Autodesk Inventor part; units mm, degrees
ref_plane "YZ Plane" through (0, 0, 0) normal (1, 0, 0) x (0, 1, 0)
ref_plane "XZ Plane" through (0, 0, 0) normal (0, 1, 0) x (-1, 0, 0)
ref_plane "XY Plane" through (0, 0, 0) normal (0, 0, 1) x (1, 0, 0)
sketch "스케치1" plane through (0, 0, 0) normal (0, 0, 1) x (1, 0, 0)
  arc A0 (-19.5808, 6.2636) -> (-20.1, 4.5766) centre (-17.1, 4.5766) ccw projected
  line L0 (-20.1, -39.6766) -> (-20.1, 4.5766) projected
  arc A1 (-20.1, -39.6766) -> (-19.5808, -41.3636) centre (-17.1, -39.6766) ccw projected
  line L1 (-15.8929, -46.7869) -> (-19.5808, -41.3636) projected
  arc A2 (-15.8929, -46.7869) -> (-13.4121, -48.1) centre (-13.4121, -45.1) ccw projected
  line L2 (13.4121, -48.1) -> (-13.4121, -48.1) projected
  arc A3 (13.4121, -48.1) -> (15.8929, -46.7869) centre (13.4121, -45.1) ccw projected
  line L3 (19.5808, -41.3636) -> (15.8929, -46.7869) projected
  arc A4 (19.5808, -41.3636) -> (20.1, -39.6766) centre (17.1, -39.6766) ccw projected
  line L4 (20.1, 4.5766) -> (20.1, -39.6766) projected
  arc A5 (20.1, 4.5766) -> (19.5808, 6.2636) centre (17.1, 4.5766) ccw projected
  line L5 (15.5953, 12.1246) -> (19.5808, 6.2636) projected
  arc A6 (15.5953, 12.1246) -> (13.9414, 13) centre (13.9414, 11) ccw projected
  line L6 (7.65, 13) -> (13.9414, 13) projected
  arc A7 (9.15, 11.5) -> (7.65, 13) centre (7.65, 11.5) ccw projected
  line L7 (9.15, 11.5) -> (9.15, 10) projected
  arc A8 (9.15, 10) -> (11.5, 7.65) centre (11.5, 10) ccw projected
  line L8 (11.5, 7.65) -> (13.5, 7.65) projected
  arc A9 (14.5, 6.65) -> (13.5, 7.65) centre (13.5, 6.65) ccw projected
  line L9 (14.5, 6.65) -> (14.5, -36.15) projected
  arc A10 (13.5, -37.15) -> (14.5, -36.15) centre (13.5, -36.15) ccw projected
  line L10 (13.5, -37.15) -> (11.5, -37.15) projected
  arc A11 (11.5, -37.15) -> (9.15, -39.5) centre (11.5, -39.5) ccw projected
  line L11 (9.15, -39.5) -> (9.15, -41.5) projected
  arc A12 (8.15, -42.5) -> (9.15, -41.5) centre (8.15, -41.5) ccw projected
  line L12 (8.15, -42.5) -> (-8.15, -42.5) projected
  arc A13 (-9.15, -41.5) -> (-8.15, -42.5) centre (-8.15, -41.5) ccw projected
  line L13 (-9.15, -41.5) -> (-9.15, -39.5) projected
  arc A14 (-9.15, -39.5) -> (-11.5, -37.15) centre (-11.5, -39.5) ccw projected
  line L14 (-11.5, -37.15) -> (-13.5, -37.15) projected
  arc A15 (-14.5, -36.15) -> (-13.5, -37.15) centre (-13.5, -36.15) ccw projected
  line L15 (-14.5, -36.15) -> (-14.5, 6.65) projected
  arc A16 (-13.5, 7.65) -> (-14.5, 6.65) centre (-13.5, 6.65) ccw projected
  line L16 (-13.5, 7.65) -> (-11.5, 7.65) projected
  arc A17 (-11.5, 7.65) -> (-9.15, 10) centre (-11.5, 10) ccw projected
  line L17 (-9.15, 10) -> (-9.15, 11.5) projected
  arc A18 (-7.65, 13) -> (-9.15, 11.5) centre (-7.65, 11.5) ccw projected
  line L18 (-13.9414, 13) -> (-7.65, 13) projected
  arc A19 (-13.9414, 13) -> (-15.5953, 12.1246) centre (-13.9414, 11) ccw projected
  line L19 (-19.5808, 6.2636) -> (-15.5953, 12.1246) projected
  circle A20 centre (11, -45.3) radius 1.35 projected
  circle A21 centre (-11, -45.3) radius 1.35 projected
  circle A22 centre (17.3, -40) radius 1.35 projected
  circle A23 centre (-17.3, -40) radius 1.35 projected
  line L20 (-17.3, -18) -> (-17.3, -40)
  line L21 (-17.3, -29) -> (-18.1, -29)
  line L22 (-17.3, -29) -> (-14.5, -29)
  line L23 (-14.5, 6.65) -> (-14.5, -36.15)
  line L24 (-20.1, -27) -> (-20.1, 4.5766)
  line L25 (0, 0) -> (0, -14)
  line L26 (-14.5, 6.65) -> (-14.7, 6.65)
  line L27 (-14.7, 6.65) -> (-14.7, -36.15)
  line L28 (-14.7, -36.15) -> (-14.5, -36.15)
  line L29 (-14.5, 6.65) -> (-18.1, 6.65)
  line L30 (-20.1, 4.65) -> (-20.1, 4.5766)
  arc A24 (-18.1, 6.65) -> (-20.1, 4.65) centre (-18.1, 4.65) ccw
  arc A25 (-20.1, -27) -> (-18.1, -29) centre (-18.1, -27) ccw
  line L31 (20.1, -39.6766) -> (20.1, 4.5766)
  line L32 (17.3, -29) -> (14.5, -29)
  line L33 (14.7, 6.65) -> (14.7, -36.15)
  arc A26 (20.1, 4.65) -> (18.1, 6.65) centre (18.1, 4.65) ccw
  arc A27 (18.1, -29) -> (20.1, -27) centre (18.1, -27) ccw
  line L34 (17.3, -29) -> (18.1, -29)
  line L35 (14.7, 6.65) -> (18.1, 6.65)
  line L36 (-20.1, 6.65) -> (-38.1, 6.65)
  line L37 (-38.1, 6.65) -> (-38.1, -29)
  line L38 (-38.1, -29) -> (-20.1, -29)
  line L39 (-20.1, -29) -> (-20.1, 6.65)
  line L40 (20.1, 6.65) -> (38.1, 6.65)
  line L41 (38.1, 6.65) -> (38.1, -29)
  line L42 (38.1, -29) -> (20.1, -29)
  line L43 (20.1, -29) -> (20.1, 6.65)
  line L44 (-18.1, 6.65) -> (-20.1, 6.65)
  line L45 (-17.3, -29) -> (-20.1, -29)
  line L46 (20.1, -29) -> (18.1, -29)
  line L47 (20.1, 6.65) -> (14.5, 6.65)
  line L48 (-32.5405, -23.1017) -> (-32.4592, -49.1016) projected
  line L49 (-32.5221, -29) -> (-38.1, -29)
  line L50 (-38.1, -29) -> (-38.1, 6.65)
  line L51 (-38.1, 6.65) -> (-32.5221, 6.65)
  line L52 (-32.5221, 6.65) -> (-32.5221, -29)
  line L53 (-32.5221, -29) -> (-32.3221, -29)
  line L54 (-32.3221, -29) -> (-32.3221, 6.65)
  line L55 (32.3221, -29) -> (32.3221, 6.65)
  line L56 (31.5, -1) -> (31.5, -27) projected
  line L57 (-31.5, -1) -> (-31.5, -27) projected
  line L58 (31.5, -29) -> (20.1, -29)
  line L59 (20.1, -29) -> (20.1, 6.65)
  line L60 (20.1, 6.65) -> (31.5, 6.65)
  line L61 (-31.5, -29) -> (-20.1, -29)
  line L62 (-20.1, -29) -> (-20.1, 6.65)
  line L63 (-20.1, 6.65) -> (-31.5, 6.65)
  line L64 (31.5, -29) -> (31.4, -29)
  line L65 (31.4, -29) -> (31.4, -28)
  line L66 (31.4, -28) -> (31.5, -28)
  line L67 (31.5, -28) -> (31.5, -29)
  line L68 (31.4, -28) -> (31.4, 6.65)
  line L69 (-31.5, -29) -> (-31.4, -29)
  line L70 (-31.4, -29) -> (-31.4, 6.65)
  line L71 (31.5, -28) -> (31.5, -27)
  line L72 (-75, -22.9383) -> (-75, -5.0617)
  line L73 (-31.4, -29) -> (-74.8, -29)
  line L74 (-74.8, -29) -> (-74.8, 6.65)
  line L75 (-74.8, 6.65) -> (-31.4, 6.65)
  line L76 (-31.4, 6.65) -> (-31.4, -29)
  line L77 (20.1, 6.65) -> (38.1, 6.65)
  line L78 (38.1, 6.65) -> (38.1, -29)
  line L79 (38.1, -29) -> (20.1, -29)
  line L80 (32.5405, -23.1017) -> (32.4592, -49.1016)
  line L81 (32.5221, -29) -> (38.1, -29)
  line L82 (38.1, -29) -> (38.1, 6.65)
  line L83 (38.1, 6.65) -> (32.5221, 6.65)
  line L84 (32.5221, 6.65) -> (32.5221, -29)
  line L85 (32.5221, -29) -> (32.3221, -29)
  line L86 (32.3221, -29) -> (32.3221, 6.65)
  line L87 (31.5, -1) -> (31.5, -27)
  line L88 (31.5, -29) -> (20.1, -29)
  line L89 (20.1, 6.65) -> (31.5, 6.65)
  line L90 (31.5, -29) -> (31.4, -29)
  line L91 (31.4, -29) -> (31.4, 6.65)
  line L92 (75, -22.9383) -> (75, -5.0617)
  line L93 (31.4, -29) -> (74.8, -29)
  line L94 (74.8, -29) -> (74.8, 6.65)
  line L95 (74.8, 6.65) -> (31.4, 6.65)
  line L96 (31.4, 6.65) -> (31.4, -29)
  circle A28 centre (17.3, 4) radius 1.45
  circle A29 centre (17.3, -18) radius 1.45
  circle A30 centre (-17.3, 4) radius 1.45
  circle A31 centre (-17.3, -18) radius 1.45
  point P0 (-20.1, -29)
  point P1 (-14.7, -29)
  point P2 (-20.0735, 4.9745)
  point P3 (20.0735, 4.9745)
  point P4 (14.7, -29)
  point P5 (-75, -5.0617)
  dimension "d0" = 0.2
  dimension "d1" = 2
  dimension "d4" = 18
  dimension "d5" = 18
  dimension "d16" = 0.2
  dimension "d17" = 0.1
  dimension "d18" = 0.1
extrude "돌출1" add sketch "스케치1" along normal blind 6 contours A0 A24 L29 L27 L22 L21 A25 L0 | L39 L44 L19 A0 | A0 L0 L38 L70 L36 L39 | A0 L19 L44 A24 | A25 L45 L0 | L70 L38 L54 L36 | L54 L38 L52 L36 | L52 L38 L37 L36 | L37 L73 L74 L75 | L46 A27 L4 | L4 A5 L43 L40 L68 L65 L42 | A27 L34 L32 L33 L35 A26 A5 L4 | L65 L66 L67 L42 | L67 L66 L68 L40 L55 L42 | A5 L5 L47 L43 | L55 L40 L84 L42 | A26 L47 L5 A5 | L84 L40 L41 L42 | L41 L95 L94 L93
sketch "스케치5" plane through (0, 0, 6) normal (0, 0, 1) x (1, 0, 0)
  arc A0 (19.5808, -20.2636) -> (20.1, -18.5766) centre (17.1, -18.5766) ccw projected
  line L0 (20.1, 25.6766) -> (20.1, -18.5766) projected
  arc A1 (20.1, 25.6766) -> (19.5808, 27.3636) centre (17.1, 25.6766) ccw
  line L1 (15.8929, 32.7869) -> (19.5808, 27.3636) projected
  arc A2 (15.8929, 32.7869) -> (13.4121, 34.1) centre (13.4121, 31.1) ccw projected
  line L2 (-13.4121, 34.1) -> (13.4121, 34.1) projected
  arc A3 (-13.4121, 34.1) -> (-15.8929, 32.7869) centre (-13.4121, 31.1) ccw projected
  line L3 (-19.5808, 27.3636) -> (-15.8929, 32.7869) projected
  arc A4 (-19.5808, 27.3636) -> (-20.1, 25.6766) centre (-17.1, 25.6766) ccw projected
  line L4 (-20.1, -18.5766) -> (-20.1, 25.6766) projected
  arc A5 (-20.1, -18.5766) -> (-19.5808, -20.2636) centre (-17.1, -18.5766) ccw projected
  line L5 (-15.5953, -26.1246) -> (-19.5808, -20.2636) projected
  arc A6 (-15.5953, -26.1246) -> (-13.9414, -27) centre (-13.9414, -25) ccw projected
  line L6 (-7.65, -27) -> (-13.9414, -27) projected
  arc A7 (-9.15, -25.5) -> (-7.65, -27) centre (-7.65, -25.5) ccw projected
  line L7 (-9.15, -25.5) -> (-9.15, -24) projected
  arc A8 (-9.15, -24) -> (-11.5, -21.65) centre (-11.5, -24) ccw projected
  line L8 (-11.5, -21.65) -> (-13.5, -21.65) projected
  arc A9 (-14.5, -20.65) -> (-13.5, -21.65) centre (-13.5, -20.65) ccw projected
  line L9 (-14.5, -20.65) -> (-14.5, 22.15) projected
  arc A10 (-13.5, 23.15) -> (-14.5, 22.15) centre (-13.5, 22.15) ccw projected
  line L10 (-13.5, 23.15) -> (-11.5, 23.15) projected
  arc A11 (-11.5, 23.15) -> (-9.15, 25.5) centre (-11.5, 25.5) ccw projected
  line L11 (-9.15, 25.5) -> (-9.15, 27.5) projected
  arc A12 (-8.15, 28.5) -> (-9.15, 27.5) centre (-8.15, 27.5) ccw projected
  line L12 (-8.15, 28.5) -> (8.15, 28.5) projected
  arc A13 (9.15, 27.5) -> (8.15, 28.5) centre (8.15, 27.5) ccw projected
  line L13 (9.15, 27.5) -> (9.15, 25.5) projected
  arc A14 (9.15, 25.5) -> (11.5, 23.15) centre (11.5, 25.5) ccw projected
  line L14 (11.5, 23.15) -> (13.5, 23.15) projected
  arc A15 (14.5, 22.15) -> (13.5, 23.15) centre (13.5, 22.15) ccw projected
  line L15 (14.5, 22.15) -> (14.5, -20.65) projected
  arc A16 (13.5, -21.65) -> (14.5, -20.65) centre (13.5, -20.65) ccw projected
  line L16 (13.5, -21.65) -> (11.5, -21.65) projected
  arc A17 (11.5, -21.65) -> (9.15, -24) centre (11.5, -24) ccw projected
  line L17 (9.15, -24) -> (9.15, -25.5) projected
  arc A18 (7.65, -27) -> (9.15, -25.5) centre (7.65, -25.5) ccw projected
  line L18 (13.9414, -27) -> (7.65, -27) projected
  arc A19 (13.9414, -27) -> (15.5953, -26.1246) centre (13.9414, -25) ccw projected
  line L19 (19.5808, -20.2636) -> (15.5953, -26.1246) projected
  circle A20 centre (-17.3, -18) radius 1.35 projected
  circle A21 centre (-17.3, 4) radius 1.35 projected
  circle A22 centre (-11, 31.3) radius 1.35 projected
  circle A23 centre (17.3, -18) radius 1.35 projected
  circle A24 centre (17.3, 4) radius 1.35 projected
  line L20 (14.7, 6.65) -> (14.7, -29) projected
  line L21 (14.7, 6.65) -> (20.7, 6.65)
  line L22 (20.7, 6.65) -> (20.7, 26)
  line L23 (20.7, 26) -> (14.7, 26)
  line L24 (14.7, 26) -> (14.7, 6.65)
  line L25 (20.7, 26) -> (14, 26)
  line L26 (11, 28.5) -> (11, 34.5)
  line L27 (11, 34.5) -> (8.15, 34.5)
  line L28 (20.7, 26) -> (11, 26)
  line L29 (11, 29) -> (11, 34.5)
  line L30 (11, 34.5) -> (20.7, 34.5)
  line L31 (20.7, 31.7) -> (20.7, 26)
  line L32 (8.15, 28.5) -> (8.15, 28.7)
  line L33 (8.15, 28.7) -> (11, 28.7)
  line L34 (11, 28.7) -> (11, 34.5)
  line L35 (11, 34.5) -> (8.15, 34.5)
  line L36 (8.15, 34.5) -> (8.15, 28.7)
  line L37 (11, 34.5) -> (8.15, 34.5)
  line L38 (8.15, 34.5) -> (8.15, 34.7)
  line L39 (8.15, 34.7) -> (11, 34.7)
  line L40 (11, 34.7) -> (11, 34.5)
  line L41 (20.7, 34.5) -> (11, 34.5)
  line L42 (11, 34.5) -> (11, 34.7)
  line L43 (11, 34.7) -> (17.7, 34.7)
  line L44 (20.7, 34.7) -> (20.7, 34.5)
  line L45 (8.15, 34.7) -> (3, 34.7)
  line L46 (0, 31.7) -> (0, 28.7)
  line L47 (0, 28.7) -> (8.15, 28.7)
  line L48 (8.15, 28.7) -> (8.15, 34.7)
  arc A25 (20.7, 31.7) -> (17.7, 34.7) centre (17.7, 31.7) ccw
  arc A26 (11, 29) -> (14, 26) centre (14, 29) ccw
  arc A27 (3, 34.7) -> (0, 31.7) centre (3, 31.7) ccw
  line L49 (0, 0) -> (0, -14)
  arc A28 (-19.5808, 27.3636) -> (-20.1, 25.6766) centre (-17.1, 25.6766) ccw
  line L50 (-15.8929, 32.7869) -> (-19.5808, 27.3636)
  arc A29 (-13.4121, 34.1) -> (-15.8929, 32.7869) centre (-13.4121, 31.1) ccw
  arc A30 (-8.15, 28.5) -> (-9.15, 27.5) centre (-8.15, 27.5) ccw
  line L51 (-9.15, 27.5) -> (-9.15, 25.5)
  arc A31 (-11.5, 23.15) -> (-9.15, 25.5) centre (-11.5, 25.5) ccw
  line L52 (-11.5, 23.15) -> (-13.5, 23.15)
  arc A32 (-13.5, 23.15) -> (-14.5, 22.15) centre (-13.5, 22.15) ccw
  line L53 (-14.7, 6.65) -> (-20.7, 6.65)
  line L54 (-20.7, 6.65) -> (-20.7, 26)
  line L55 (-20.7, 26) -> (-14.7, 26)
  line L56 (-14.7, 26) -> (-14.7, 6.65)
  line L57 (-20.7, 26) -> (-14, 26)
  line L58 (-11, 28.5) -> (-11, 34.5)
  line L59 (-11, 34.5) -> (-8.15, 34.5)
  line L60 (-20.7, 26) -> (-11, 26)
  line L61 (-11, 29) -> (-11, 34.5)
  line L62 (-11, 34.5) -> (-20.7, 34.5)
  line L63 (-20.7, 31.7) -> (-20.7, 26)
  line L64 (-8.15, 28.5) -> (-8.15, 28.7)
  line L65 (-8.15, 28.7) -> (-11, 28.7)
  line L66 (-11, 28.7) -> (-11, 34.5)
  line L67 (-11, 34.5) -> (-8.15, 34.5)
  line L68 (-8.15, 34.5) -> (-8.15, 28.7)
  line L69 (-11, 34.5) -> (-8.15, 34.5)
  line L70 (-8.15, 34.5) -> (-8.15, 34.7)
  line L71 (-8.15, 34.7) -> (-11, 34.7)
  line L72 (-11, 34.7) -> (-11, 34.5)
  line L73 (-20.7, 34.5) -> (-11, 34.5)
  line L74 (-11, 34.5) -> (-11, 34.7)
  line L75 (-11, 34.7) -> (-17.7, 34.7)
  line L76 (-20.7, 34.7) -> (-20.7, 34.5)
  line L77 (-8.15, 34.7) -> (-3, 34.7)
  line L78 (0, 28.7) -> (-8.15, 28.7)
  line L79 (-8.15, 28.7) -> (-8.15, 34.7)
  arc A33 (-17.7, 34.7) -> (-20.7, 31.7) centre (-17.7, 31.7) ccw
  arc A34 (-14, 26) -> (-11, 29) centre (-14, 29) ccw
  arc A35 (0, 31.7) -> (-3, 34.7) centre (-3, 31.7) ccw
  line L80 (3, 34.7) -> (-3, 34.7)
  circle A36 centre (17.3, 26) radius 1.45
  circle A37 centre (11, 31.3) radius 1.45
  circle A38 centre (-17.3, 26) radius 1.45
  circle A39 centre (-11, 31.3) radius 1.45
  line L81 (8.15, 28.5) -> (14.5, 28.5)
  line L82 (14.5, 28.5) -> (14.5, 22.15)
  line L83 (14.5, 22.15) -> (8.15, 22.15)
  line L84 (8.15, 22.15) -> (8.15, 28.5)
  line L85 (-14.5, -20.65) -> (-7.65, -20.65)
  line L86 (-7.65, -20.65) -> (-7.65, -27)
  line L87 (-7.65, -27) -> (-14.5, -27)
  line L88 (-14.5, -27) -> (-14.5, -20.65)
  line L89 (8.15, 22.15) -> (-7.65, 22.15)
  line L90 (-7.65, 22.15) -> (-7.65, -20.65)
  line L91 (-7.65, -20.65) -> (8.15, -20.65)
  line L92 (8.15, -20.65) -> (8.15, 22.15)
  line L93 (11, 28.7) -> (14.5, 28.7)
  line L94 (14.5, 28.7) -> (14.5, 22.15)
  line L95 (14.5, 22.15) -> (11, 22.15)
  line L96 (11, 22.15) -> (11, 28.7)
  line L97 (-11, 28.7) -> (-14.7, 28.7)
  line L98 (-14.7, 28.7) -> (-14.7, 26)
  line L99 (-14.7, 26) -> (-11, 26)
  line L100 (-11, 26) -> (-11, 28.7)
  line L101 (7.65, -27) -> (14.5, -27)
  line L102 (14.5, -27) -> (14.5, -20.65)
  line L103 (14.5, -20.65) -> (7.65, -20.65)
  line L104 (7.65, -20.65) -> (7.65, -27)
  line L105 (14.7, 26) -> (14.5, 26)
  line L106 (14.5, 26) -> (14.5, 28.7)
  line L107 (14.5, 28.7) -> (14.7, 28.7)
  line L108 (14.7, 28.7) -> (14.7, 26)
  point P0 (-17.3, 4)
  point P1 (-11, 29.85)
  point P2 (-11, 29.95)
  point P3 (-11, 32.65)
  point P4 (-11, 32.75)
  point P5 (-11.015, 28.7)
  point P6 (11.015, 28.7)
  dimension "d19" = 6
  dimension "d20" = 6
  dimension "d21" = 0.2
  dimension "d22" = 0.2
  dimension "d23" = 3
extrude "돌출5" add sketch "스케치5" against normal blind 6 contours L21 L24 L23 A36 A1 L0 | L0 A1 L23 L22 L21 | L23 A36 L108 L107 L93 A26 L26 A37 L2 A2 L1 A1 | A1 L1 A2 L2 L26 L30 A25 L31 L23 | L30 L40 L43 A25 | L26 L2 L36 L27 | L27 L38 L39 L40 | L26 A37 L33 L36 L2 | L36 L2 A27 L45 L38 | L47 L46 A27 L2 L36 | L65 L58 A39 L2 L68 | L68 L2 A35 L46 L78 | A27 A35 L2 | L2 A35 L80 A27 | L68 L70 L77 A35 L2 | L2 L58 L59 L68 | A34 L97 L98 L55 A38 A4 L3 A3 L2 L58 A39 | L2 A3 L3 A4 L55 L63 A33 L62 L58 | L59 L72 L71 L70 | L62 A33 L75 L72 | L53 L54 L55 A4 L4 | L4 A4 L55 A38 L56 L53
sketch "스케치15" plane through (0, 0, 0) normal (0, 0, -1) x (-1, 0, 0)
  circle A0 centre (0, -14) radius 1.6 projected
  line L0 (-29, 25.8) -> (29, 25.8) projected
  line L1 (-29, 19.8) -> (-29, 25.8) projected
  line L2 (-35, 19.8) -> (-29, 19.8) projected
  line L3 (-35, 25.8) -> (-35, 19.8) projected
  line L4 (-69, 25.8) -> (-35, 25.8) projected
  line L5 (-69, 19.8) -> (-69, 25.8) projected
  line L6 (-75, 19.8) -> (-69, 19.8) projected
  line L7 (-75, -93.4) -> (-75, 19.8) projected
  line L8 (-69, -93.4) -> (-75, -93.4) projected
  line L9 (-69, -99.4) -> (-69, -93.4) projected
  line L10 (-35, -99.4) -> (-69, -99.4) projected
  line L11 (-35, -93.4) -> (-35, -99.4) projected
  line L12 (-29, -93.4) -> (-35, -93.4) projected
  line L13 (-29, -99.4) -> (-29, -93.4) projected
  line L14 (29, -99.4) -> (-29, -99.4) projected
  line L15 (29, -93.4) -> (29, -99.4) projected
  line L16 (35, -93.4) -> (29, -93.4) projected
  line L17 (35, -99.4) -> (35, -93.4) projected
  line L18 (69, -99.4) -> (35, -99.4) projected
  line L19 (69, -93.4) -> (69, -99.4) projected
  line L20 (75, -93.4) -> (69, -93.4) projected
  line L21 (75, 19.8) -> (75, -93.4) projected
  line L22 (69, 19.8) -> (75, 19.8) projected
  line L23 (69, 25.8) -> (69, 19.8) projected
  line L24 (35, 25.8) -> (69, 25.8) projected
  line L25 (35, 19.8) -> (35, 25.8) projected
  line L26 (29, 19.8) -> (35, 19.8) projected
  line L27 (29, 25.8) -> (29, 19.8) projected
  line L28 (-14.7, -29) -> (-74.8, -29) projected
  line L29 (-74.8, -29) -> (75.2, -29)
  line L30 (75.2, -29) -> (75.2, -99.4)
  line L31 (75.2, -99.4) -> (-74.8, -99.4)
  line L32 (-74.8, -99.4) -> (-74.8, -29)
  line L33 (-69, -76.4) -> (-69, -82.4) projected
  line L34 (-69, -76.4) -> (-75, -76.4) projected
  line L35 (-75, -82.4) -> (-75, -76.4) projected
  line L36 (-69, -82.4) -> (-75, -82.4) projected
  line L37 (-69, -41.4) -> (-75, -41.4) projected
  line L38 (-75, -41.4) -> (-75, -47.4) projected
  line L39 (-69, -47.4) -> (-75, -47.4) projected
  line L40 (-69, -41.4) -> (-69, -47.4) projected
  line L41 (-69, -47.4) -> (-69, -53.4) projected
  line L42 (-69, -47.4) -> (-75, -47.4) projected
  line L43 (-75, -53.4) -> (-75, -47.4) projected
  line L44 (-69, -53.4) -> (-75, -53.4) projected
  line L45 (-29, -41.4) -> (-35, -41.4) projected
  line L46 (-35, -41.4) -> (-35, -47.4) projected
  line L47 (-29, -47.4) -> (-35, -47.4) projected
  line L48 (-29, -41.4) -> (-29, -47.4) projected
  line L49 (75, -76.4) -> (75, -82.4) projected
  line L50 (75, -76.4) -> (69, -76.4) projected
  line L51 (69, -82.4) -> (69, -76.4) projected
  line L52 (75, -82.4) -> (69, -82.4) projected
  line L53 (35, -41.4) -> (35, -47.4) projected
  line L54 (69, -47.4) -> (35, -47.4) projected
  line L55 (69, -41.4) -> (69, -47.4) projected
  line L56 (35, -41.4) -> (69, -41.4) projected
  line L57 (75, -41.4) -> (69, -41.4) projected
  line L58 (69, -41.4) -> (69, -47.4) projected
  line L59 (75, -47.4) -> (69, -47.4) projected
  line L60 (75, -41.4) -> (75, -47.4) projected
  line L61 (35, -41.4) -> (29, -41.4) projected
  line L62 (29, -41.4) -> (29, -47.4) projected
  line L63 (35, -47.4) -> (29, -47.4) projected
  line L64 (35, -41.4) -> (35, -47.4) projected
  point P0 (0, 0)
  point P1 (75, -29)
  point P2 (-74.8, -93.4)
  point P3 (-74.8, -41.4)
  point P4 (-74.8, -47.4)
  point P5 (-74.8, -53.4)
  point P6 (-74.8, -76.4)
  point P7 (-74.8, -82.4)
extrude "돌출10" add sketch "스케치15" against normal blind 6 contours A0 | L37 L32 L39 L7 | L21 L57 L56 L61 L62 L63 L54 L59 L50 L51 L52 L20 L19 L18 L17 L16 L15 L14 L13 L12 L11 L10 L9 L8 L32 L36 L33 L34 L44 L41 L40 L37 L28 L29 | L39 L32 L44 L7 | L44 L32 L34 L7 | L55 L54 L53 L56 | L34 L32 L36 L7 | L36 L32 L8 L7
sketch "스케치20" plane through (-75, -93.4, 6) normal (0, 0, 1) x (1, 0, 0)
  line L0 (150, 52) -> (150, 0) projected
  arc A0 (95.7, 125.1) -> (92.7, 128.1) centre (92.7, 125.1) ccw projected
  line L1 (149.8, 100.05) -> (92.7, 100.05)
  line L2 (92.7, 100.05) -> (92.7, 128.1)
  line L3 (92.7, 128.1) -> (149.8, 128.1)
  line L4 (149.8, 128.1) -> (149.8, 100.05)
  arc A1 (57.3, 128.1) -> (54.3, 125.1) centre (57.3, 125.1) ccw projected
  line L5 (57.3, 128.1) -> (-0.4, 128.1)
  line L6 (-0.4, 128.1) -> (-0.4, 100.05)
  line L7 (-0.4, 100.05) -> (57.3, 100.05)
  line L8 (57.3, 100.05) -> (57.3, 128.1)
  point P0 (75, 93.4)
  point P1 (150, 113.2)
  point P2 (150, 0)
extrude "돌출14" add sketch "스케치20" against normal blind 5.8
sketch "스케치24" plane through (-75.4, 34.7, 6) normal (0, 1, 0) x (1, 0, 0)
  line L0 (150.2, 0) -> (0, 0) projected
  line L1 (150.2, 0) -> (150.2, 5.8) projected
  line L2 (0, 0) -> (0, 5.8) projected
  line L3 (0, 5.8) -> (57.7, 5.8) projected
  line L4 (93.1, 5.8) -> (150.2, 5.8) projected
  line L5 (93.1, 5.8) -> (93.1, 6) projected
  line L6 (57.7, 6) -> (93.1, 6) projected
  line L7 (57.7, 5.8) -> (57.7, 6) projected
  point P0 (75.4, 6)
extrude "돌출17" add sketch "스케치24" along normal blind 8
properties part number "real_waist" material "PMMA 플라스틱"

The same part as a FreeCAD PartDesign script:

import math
import FreeCAD as App
import Part
import Sketcher
from FreeCAD import Vector
Q = App.Units.Quantity


def add_polygon(sketch, points):
    """Adds a closed chain of lines whose ends are joined by coincident constraints."""
    first, n = sketch.GeometryCount, len(points)
    for a, b in zip(points, points[1:] + points[:1]):
        sketch.addGeometry(Part.LineSegment(App.Vector(*a, 0), App.Vector(*b, 0)), False)
    for i in range(n):
        sketch.addConstraint(Sketcher.Constraint("Coincident", first + i, 2, first + (i + 1) % n, 1))

doc = App.newDocument("Part")
body = doc.addObject("PartDesign::Body", "Body")
body.AllowCompound = True

# Sketch on XY plane
sketch1 = body.newObject("Sketcher::SketchObject", "Sketch")
sketch1.AttachmentSupport = (doc.getObject("XY_Plane"), [""])
sketch1.MapMode = "FlatFace"
add_polygon(sketch1, [(-14.7, 6.7), (-74.8, 6.7), (-74.8, -29), (-17.3, -29), (-14.7, -29)])  # lines 0-4
sketch1.addGeometry(Part.Circle(Vector(-17.3, -18, 0), Vector(0, 0, 1), 1.4), False)  # 5
sketch1.addGeometry(Part.Circle(Vector(-17.3, 4, 0), Vector(0, 0, 1), 1.4), False)  # 6
add_polygon(sketch1, [(74.8, -29), (74.8, 6.7), (14.7, 6.7), (14.7, -29)])  # lines 7-10
sketch1.addGeometry(Part.Circle(Vector(17.3, 4, 0), Vector(0, 0, 1), 1.4), False)  # 11
sketch1.addGeometry(Part.Circle(Vector(17.3, -18, 0), Vector(0, 0, 1), 1.4), False)  # 12
sketch1.addConstraint([
    Sketcher.Constraint("Horizontal", 0),
    Sketcher.Constraint("Vertical", 1),
    Sketcher.Constraint("Horizontal", 2),
    Sketcher.Constraint("Horizontal", 3),
    Sketcher.Constraint("Vertical", 4),
    Sketcher.Constraint("Vertical", 7),
    Sketcher.Constraint("Horizontal", 8),
    Sketcher.Constraint("Vertical", 9),
    Sketcher.Constraint("Horizontal", 10),
    Sketcher.Constraint("Equal", 5, 6),
    Sketcher.Constraint("Equal", 6, 11),
    Sketcher.Constraint("Equal", 11, 12),
    Sketcher.Constraint("Symmetric", 6, 3, 11, 3, -2),
    Sketcher.Constraint("Symmetric", 5, 3, 12, 3, -2),
    Sketcher.Constraint("Symmetric", 0, 2, 7, 2, -2),
    Sketcher.Constraint("Symmetric", 3, 2, 9, 2, -2),
    Sketcher.Constraint("Vertical", 5, 3, 6, 3),
    Sketcher.Constraint("Vertical", 6, 3, 2, 2),
    Sketcher.Constraint("DistanceY", 5, 3, -1, 1, Q("18 mm")),
    Sketcher.Constraint("Diameter", 5, Q("2.9 mm")),
    Sketcher.Constraint("DistanceX", 0, 2, 0, 1, Q("60.1 mm")),
    Sketcher.Constraint("DistanceX", 2, 1, 2, 2, Q("57.5 mm")),
    Sketcher.Constraint("DistanceY", -1, 1, 6, 3, Q("4 mm")),
    Sketcher.Constraint("DistanceY", 1, 2, -1, 1, Q("29 mm")),
    Sketcher.Constraint("DistanceX", 3, 2, 12, 3, Q("32 mm")),
    Sketcher.Constraint("DistanceY", 1, 2, 1, 1, Q("35.65 mm")),
])
pad1 = body.newObject("PartDesign::Pad", "Pad")
pad1.Profile = sketch1
pad1.Length = 6

# Sketch on XY plane
sketch2 = body.newObject("Sketcher::SketchObject", "Sketch001")
sketch2.AttachmentSupport = (doc.getObject("XY_Plane"), [""])
sketch2.MapMode = "FlatFace"
sketch2.AttachmentOffset = App.Placement(Vector(0, 0, 6), App.Rotation())
sketch2.addGeometry([
    Part.LineSegment(Vector(14.7, 6.65, 0), Vector(20.7, 6.65, 0)),  # 0
    Part.LineSegment(Vector(20.7, 6.65, 0), Vector(20.7, 31.7, 0)),  # 1
    Part.ArcOfCircle(Part.Circle(Vector(17.7, 31.7, 0), Vector(0, 0, 1), 3), math.radians(0), math.radians(90)),  # 2
    Part.LineSegment(Vector(17.7, 34.7, 0), Vector(-17.7, 34.7, 0)),  # 3
    Part.ArcOfCircle(Part.Circle(Vector(-17.7, 31.7, 0), Vector(0, 0, 1), 3), math.radians(90), math.radians(180)),  # 4
    Part.LineSegment(Vector(-20.7, 31.7, 0), Vector(-20.7, 6.65, 0)),  # 5
    Part.LineSegment(Vector(-20.7, 6.65, 0), Vector(-14.7, 6.65, 0)),  # 6
    Part.LineSegment(Vector(-14.7, 6.65, 0), Vector(-14.7, 28.7, 0)),  # 7
    Part.LineSegment(Vector(-14.7, 28.7, 0), Vector(-11.02, 28.7, 0)),  # 8
    Part.ArcOfCircle(Part.Circle(Vector(-14, 29, 0), Vector(0, 0, 1), 3), math.radians(-5.74), math.radians(0)),  # 9
    Part.LineSegment(Vector(-11, 29, 0), Vector(-11, 28.7, 0)),  # 10
    Part.LineSegment(Vector(-11, 28.7, 0), Vector(11, 28.7, 0)),  # 11
    Part.LineSegment(Vector(11, 28.7, 0), Vector(11, 29, 0)),  # 12
    Part.ArcOfCircle(Part.Circle(Vector(14, 29, 0), Vector(0, 0, 1), 3), math.radians(180), math.radians(185.74)),  # 13
    Part.LineSegment(Vector(11.02, 28.7, 0), Vector(14.7, 28.7, 0)),  # 14
    Part.LineSegment(Vector(14.7, 28.7, 0), Vector(14.7, 6.65, 0)),  # 15
    Part.Circle(Vector(17.3, 26, 0), Vector(0, 0, 1), 1.45),  # 16
    Part.Circle(Vector(11, 31.3, 0), Vector(0, 0, 1), 1.45),  # 17
    Part.Circle(Vector(-11, 31.3, 0), Vector(0, 0, 1), 1.45),  # 18
    Part.Circle(Vector(-17.3, 26, 0), Vector(0, 0, 1), 1.45),  # 19
], False)
sketch2.addConstraint([
    Sketcher.Constraint("Coincident", 0, 2, 1, 1),
    Sketcher.Constraint("Tangent", 1, 2, 2, 1),
    Sketcher.Constraint("Tangent", 2, 2, 3, 1),
    Sketcher.Constraint("Tangent", 3, 2, 4, 1),
    Sketcher.Constraint("Tangent", 4, 2, 5, 1),
    Sketcher.Constraint("Coincident", 5, 2, 6, 1),
    Sketcher.Constraint("Coincident", 6, 2, 7, 1),
    Sketcher.Constraint("Coincident", 7, 2, 8, 1),
    Sketcher.Constraint("Coincident", 8, 2, 9, 1),
    Sketcher.Constraint("Tangent", 9, 2, 10, 1),
    Sketcher.Constraint("Coincident", 10, 2, 11, 1),
    Sketcher.Constraint("Coincident", 11, 2, 12, 1),
    Sketcher.Constraint("Tangent", 12, 2, 13, 1),
    Sketcher.Constraint("Coincident", 13, 2, 14, 1),
    Sketcher.Constraint("Coincident", 14, 2, 15, 1),
    Sketcher.Constraint("Coincident", 15, 2, 0, 1),
    Sketcher.Constraint("Horizontal", 0),
    Sketcher.Constraint("Vertical", 1),
    Sketcher.Constraint("Horizontal", 3),
    Sketcher.Constraint("Vertical", 5),
    Sketcher.Constraint("Horizontal", 6),
    Sketcher.Constraint("Vertical", 7),
    Sketcher.Constraint("Horizontal", 8),
    Sketcher.Constraint("Vertical", 10),
    Sketcher.Constraint("Horizontal", 11),
    Sketcher.Constraint("Vertical", 12),
    Sketcher.Constraint("Horizontal", 14),
    Sketcher.Constraint("Vertical", 15),
    Sketcher.Constraint("Equal", 2, 4),
    Sketcher.Constraint("Equal", 4, 9),
    Sketcher.Constraint("Equal", 9, 13),
    Sketcher.Constraint("Equal", 16, 17),
    Sketcher.Constraint("Equal", 17, 18),
    Sketcher.Constraint("Equal", 18, 19),
    Sketcher.Constraint("Symmetric", 9, 3, 13, 3, -2),
    Sketcher.Constraint("Symmetric", 17, 3, 18, 3, -2),
    Sketcher.Constraint("Symmetric", 16, 3, 19, 3, -2),
    Sketcher.Constraint("Symmetric", 0, 2, 5, 2, -2),
    Sketcher.Constraint("Symmetric", 7, 2, 14, 2, -2),
    Sketcher.Constraint("Horizontal", 8, 2, 10, 2),
    Sketcher.Constraint("Vertical", 18, 3, 9, 2),
    Sketcher.Constraint("Radius", 2, Q("3 mm")),
    Sketcher.Constraint("DistanceX", 0, 1, 0, 2, Q("6 mm")),
    Sketcher.Constraint("DistanceY", 16, 3, 13, 3, Q("3 mm")),
    Sketcher.Constraint("DistanceY", 7, 2, 4, 3, Q("3 mm")),
    Sketcher.Constraint("Diameter", 16, Q("2.9 mm")),
    Sketcher.Constraint("DistanceX", 11, 1, 11, 2, Q("22 mm")),
    Sketcher.Constraint("DistanceX", 3, 2, 3, 1, Q("35.4 mm")),
    Sketcher.Constraint("DistanceY", 10, 2, 10, 1, Q("0.3 mm")),
    Sketcher.Constraint("DistanceY", -1, 1, 9, 3, Q("29 mm")),
    Sketcher.Constraint("DistanceX", 4, 3, 16, 3, Q("35 mm")),
    Sketcher.Constraint("DistanceY", 1, 1, 1, 2, Q("25.05 mm")),
    Sketcher.Constraint("DistanceY", -1, 1, 17, 3, Q("31.3 mm")),
])
pad2 = body.newObject("PartDesign::Pad", "Pad001")
pad2.Profile = sketch2
pad2.Length = 6
pad2.Reversed = True

# Sketch on XY plane
sketch3 = body.newObject("Sketcher::SketchObject", "Sketch002")
sketch3.AttachmentSupport = (doc.getObject("XY_Plane"), [""])
sketch3.MapMode = "FlatFace"
sketch3.addGeometry(Part.Circle(Vector(0, -14, 0), Vector(0, 0, 1), 1.6), False)  # 0
add_polygon(sketch3, [(74.8, -41.4), (75, -41.4), (75, -93.4), (69, -93.4), (69, -99.4), (35, -99.4), (35, -93.4), (29, -93.4), (29, -99.4), (-29, -99.4), (-29, -93.4), (-35, -93.4), (-35, -99.4), (-69, -99.4), (-69, -93.4), (-75, -93.4), (-75, -82.4), (-69, -82.4), (-69, -76.4), (-75, -76.4), (-75, -47.4), (-69, -47.4), (-69, -41.4), (-75, -41.4), (-75, -29), (74.8, -29)])  # lines 1-26
add_polygon(sketch3, [(74.8, -41.4), (69, -41.4), (69, -53.4), (74.8, -53.4)])  # lines 27-30
add_polygon(sketch3, [(-29, -41.4), (-35, -41.4), (-35, -47.4), (-29, -47.4)])  # lines 31-34
add_polygon(sketch3, [(69, -82.4), (74.8, -82.4), (74.8, -76.4), (69, -76.4)])  # lines 35-38
add_polygon(sketch3, [(29, -41.4), (29, -47.4), (35, -47.4), (35, -41.4)])  # lines 39-42
sketch3.addConstraint([
    Sketcher.Constraint("Horizontal", 1),
    Sketcher.Constraint("Vertical", 2),
    Sketcher.Constraint("Horizontal", 3),
    Sketcher.Constraint("Vertical", 4),
    Sketcher.Constraint("Horizontal", 5),
    Sketcher.Constraint("Vertical", 6),
    Sketcher.Constraint("Horizontal", 7),
    Sketcher.Constraint("Vertical", 8),
    Sketcher.Constraint("Horizontal", 9),
    Sketcher.Constraint("Vertical", 10),
    Sketcher.Constraint("Horizontal", 11),
    Sketcher.Constraint("Vertical", 12),
    Sketcher.Constraint("Horizontal", 13),
    Sketcher.Constraint("Vertical", 14),
    Sketcher.Constraint("Horizontal", 15),
    Sketcher.Constraint("Vertical", 16),
    Sketcher.Constraint("Horizontal", 17),
    Sketcher.Constraint("Vertical", 18),
    Sketcher.Constraint("Horizontal", 19),
    Sketcher.Constraint("Vertical", 20),
    Sketcher.Constraint("Horizontal", 21),
    Sketcher.Constraint("Vertical", 22),
    Sketcher.Constraint("Horizontal", 23),
    Sketcher.Constraint("Vertical", 24),
    Sketcher.Constraint("Horizontal", 25),
    Sketcher.Constraint("Vertical", 26),
    Sketcher.Constraint("Horizontal", 27),
    Sketcher.Constraint("Vertical", 28),
    Sketcher.Constraint("Horizontal", 29),
    Sketcher.Constraint("Vertical", 30),
    Sketcher.Constraint("Horizontal", 31),
    Sketcher.Constraint("Vertical", 32),
    Sketcher.Constraint("Horizontal", 33),
    Sketcher.Constraint("Vertical", 34),
    Sketcher.Constraint("Horizontal", 35),
    Sketcher.Constraint("Vertical", 36),
    Sketcher.Constraint("Horizontal", 37),
    Sketcher.Constraint("Vertical", 38),
    Sketcher.Constraint("Vertical", 39),
    Sketcher.Constraint("Horizontal", 40),
    Sketcher.Constraint("Vertical", 41),
    Sketcher.Constraint("Horizontal", 42),
    Sketcher.Constraint("Coincident", 30, 2, 26, 2),
    Sketcher.Constraint("Symmetric", 7, 2, 10, 2, -2),
    Sketcher.Constraint("Symmetric", 5, 2, 12, 2, -2),
    Sketcher.Constraint("Symmetric", 3, 2, 14, 2, -2),
    Sketcher.Constraint("Symmetric", 1, 2, 23, 2, -2),
    Sketcher.Constraint("Symmetric", 18, 2, 37, 2, -2),
    Sketcher.Constraint("Symmetric", 33, 2, 39, 2, -2),
    Sketcher.Constraint("Symmetric", 31, 2, 41, 2, -2),
    Sketcher.Constraint("PointOnObject", 0, 3, -2),
    Sketcher.Constraint("Horizontal", 3, 2, 6, 2),
    Sketcher.Constraint("Horizontal", 5, 2, 8, 2),
    Sketcher.Constraint("Horizontal", 30, 2, 31, 2),
    Sketcher.Constraint("Horizontal", 21, 2, 32, 2),
    Sketcher.Constraint("Horizontal", 17, 2, 35, 2),
    Sketcher.Constraint("Vertical", 14, 2, 17, 2),
    Sketcher.Constraint("Vertical", 16, 2, 19, 2),
    Sketcher.Constraint("Vertical", 18, 2, 21, 2),
    Sketcher.Constraint("Vertical", 20, 2, 23, 2),
    Sketcher.Constraint("Vertical", 4, 2, 27, 2),
    Sketcher.Constraint("Vertical", 12, 2, 31, 2),
    Sketcher.Constraint("Vertical", 10, 2, 33, 2),
    Sketcher.Constraint("Vertical", 30, 2, 35, 2),
    Sketcher.Constraint("Equal", 3, 7),
    Sketcher.Constraint("Equal", 42, 4),
    Sketcher.Constraint("Equal", 14, 18),
    Sketcher.Constraint("Equal", 18, 22),
    Sketcher.Constraint("Diameter", 0, Q("3.2 mm")),
    Sketcher.Constraint("DistanceX", 3, 2, 3, 1, Q("6 mm")),
    Sketcher.Constraint("DistanceX", 5, 2, 5, 1, Q("34 mm")),
    Sketcher.Constraint("DistanceX", 9, 2, 9, 1, Q("58 mm")),
    Sketcher.Constraint("DistanceY", 2, 2, 2, 1, Q("52 mm")),
    Sketcher.Constraint("DistanceY", 16, 1, 16, 2, Q("11 mm")),
    Sketcher.Constraint("DistanceY", 28, 2, 28, 1, Q("12 mm")),
    Sketcher.Constraint("DistanceX", 1, 1, 1, 2, Q("0.2 mm")),
    Sketcher.Constraint("DistanceY", 24, 1, 24, 2, Q("12.4 mm")),
    Sketcher.Constraint("DistanceY", 0, 3, -1, 1, Q("14 mm")),
    Sketcher.Constraint("DistanceY", 24, 2, -1, 1, Q("29 mm")),
])
pad3 = body.newObject("PartDesign::Pad", "Pad002")
pad3.Profile = sketch3
pad3.Length = 6

# Sketch on XY plane
sketch4 = body.newObject("Sketcher::SketchObject", "Sketch003")
sketch4.AttachmentSupport = (doc.getObject("XY_Plane"), [""])
sketch4.MapMode = "FlatFace"
sketch4.AttachmentOffset = App.Placement(Vector(0, 0, 6), App.Rotation())
add_polygon(sketch4, [(18, 7), (75, 7), (75, 35), (18, 35)])  # lines 0-3
add_polygon(sketch4, [(-18, 7), (-18, 35), (-75, 35), (-75, 7)])  # lines 4-7
sketch4.addConstraint([
    Sketcher.Constraint("Horizontal", 0),
    Sketcher.Constraint("Vertical", 1),
    Sketcher.Constraint("Horizontal", 2),
    Sketcher.Constraint("Vertical", 3),
    Sketcher.Constraint("Vertical", 4),
    Sketcher.Constraint("Horizontal", 5),
    Sketcher.Constraint("Vertical", 6),
    Sketcher.Constraint("Horizontal", 7),
    Sketcher.Constraint("Symmetric", 2, 2, 4, 2, -2),
    Sketcher.Constraint("Horizontal", 3, 2, 6, 2),
    Sketcher.Constraint("DistanceX", 0, 1, 0, 2, Q("57.1 mm")),
    Sketcher.Constraint("DistanceX", 5, 2, 5, 1, Q("57.7 mm")),
    Sketcher.Constraint("DistanceY", 1, 1, 1, 2, Q("28.05 mm")),
    Sketcher.Constraint("DistanceX", -1, 1, 0, 2, Q("74.8 mm")),
    Sketcher.Constraint("DistanceY", -1, 1, 1, 2, Q("34.7 mm")),
])
pad4 = body.newObject("PartDesign::Pad", "Pad003")
pad4.Profile = sketch4
pad4.Length = 5.8
pad4.Reversed = True

# Sketch on XZ plane
sketch5 = body.newObject("Sketcher::SketchObject", "Sketch004")
sketch5.AttachmentSupport = (doc.getObject("XZ_Plane"), [""])
sketch5.MapMode = "FlatFace"
sketch5.AttachmentOffset = App.Placement(Vector(0, 0, -34.7), App.Rotation())
add_polygon(sketch5, [(-75.4, 6), (74.8, 6), (74.8, 0.2), (17.7, 0.2), (17.7, 0), (-17.7, 0), (-17.7, 0.2), (-75.4, 0.2)])  # lines 0-7
sketch5.addConstraint([
    Sketcher.Constraint("Horizontal", 0),
    Sketcher.Constraint("Vertical", 1),
    Sketcher.Constraint("Horizontal", 2),
    Sketcher.Constraint("Vertical", 3),
    Sketcher.Constraint("Horizontal", 4),
    Sketcher.Constraint("Vertical", 5),
    Sketcher.Constraint("Horizontal", 6),
    Sketcher.Constraint("Vertical", 7),
    Sketcher.Constraint("Symmetric", 3, 2, 4, 2, -1, 1),
    Sketcher.Constraint("Horizontal", 2, 2, 5, 2),
    Sketcher.Constraint("DistanceX", 0, 1, 0, 2, Q("150.2 mm")),
    Sketcher.Constraint("DistanceX", 2, 2, 2, 1, Q("57.1 mm")),
    Sketcher.Constraint("DistanceX", 4, 2, 4, 1, Q("35.4 mm")),
    Sketcher.Constraint("DistanceY", 1, 2, 1, 1, Q("5.8 mm")),
    Sketcher.Constraint("DistanceY", 3, 2, 3, 1, Q("0.2 mm")),
])
pad5 = body.newObject("PartDesign::Pad", "Pad004")
pad5.Profile = sketch5
pad5.Length = 8
pad5.Reversed = True

doc.recompute()
